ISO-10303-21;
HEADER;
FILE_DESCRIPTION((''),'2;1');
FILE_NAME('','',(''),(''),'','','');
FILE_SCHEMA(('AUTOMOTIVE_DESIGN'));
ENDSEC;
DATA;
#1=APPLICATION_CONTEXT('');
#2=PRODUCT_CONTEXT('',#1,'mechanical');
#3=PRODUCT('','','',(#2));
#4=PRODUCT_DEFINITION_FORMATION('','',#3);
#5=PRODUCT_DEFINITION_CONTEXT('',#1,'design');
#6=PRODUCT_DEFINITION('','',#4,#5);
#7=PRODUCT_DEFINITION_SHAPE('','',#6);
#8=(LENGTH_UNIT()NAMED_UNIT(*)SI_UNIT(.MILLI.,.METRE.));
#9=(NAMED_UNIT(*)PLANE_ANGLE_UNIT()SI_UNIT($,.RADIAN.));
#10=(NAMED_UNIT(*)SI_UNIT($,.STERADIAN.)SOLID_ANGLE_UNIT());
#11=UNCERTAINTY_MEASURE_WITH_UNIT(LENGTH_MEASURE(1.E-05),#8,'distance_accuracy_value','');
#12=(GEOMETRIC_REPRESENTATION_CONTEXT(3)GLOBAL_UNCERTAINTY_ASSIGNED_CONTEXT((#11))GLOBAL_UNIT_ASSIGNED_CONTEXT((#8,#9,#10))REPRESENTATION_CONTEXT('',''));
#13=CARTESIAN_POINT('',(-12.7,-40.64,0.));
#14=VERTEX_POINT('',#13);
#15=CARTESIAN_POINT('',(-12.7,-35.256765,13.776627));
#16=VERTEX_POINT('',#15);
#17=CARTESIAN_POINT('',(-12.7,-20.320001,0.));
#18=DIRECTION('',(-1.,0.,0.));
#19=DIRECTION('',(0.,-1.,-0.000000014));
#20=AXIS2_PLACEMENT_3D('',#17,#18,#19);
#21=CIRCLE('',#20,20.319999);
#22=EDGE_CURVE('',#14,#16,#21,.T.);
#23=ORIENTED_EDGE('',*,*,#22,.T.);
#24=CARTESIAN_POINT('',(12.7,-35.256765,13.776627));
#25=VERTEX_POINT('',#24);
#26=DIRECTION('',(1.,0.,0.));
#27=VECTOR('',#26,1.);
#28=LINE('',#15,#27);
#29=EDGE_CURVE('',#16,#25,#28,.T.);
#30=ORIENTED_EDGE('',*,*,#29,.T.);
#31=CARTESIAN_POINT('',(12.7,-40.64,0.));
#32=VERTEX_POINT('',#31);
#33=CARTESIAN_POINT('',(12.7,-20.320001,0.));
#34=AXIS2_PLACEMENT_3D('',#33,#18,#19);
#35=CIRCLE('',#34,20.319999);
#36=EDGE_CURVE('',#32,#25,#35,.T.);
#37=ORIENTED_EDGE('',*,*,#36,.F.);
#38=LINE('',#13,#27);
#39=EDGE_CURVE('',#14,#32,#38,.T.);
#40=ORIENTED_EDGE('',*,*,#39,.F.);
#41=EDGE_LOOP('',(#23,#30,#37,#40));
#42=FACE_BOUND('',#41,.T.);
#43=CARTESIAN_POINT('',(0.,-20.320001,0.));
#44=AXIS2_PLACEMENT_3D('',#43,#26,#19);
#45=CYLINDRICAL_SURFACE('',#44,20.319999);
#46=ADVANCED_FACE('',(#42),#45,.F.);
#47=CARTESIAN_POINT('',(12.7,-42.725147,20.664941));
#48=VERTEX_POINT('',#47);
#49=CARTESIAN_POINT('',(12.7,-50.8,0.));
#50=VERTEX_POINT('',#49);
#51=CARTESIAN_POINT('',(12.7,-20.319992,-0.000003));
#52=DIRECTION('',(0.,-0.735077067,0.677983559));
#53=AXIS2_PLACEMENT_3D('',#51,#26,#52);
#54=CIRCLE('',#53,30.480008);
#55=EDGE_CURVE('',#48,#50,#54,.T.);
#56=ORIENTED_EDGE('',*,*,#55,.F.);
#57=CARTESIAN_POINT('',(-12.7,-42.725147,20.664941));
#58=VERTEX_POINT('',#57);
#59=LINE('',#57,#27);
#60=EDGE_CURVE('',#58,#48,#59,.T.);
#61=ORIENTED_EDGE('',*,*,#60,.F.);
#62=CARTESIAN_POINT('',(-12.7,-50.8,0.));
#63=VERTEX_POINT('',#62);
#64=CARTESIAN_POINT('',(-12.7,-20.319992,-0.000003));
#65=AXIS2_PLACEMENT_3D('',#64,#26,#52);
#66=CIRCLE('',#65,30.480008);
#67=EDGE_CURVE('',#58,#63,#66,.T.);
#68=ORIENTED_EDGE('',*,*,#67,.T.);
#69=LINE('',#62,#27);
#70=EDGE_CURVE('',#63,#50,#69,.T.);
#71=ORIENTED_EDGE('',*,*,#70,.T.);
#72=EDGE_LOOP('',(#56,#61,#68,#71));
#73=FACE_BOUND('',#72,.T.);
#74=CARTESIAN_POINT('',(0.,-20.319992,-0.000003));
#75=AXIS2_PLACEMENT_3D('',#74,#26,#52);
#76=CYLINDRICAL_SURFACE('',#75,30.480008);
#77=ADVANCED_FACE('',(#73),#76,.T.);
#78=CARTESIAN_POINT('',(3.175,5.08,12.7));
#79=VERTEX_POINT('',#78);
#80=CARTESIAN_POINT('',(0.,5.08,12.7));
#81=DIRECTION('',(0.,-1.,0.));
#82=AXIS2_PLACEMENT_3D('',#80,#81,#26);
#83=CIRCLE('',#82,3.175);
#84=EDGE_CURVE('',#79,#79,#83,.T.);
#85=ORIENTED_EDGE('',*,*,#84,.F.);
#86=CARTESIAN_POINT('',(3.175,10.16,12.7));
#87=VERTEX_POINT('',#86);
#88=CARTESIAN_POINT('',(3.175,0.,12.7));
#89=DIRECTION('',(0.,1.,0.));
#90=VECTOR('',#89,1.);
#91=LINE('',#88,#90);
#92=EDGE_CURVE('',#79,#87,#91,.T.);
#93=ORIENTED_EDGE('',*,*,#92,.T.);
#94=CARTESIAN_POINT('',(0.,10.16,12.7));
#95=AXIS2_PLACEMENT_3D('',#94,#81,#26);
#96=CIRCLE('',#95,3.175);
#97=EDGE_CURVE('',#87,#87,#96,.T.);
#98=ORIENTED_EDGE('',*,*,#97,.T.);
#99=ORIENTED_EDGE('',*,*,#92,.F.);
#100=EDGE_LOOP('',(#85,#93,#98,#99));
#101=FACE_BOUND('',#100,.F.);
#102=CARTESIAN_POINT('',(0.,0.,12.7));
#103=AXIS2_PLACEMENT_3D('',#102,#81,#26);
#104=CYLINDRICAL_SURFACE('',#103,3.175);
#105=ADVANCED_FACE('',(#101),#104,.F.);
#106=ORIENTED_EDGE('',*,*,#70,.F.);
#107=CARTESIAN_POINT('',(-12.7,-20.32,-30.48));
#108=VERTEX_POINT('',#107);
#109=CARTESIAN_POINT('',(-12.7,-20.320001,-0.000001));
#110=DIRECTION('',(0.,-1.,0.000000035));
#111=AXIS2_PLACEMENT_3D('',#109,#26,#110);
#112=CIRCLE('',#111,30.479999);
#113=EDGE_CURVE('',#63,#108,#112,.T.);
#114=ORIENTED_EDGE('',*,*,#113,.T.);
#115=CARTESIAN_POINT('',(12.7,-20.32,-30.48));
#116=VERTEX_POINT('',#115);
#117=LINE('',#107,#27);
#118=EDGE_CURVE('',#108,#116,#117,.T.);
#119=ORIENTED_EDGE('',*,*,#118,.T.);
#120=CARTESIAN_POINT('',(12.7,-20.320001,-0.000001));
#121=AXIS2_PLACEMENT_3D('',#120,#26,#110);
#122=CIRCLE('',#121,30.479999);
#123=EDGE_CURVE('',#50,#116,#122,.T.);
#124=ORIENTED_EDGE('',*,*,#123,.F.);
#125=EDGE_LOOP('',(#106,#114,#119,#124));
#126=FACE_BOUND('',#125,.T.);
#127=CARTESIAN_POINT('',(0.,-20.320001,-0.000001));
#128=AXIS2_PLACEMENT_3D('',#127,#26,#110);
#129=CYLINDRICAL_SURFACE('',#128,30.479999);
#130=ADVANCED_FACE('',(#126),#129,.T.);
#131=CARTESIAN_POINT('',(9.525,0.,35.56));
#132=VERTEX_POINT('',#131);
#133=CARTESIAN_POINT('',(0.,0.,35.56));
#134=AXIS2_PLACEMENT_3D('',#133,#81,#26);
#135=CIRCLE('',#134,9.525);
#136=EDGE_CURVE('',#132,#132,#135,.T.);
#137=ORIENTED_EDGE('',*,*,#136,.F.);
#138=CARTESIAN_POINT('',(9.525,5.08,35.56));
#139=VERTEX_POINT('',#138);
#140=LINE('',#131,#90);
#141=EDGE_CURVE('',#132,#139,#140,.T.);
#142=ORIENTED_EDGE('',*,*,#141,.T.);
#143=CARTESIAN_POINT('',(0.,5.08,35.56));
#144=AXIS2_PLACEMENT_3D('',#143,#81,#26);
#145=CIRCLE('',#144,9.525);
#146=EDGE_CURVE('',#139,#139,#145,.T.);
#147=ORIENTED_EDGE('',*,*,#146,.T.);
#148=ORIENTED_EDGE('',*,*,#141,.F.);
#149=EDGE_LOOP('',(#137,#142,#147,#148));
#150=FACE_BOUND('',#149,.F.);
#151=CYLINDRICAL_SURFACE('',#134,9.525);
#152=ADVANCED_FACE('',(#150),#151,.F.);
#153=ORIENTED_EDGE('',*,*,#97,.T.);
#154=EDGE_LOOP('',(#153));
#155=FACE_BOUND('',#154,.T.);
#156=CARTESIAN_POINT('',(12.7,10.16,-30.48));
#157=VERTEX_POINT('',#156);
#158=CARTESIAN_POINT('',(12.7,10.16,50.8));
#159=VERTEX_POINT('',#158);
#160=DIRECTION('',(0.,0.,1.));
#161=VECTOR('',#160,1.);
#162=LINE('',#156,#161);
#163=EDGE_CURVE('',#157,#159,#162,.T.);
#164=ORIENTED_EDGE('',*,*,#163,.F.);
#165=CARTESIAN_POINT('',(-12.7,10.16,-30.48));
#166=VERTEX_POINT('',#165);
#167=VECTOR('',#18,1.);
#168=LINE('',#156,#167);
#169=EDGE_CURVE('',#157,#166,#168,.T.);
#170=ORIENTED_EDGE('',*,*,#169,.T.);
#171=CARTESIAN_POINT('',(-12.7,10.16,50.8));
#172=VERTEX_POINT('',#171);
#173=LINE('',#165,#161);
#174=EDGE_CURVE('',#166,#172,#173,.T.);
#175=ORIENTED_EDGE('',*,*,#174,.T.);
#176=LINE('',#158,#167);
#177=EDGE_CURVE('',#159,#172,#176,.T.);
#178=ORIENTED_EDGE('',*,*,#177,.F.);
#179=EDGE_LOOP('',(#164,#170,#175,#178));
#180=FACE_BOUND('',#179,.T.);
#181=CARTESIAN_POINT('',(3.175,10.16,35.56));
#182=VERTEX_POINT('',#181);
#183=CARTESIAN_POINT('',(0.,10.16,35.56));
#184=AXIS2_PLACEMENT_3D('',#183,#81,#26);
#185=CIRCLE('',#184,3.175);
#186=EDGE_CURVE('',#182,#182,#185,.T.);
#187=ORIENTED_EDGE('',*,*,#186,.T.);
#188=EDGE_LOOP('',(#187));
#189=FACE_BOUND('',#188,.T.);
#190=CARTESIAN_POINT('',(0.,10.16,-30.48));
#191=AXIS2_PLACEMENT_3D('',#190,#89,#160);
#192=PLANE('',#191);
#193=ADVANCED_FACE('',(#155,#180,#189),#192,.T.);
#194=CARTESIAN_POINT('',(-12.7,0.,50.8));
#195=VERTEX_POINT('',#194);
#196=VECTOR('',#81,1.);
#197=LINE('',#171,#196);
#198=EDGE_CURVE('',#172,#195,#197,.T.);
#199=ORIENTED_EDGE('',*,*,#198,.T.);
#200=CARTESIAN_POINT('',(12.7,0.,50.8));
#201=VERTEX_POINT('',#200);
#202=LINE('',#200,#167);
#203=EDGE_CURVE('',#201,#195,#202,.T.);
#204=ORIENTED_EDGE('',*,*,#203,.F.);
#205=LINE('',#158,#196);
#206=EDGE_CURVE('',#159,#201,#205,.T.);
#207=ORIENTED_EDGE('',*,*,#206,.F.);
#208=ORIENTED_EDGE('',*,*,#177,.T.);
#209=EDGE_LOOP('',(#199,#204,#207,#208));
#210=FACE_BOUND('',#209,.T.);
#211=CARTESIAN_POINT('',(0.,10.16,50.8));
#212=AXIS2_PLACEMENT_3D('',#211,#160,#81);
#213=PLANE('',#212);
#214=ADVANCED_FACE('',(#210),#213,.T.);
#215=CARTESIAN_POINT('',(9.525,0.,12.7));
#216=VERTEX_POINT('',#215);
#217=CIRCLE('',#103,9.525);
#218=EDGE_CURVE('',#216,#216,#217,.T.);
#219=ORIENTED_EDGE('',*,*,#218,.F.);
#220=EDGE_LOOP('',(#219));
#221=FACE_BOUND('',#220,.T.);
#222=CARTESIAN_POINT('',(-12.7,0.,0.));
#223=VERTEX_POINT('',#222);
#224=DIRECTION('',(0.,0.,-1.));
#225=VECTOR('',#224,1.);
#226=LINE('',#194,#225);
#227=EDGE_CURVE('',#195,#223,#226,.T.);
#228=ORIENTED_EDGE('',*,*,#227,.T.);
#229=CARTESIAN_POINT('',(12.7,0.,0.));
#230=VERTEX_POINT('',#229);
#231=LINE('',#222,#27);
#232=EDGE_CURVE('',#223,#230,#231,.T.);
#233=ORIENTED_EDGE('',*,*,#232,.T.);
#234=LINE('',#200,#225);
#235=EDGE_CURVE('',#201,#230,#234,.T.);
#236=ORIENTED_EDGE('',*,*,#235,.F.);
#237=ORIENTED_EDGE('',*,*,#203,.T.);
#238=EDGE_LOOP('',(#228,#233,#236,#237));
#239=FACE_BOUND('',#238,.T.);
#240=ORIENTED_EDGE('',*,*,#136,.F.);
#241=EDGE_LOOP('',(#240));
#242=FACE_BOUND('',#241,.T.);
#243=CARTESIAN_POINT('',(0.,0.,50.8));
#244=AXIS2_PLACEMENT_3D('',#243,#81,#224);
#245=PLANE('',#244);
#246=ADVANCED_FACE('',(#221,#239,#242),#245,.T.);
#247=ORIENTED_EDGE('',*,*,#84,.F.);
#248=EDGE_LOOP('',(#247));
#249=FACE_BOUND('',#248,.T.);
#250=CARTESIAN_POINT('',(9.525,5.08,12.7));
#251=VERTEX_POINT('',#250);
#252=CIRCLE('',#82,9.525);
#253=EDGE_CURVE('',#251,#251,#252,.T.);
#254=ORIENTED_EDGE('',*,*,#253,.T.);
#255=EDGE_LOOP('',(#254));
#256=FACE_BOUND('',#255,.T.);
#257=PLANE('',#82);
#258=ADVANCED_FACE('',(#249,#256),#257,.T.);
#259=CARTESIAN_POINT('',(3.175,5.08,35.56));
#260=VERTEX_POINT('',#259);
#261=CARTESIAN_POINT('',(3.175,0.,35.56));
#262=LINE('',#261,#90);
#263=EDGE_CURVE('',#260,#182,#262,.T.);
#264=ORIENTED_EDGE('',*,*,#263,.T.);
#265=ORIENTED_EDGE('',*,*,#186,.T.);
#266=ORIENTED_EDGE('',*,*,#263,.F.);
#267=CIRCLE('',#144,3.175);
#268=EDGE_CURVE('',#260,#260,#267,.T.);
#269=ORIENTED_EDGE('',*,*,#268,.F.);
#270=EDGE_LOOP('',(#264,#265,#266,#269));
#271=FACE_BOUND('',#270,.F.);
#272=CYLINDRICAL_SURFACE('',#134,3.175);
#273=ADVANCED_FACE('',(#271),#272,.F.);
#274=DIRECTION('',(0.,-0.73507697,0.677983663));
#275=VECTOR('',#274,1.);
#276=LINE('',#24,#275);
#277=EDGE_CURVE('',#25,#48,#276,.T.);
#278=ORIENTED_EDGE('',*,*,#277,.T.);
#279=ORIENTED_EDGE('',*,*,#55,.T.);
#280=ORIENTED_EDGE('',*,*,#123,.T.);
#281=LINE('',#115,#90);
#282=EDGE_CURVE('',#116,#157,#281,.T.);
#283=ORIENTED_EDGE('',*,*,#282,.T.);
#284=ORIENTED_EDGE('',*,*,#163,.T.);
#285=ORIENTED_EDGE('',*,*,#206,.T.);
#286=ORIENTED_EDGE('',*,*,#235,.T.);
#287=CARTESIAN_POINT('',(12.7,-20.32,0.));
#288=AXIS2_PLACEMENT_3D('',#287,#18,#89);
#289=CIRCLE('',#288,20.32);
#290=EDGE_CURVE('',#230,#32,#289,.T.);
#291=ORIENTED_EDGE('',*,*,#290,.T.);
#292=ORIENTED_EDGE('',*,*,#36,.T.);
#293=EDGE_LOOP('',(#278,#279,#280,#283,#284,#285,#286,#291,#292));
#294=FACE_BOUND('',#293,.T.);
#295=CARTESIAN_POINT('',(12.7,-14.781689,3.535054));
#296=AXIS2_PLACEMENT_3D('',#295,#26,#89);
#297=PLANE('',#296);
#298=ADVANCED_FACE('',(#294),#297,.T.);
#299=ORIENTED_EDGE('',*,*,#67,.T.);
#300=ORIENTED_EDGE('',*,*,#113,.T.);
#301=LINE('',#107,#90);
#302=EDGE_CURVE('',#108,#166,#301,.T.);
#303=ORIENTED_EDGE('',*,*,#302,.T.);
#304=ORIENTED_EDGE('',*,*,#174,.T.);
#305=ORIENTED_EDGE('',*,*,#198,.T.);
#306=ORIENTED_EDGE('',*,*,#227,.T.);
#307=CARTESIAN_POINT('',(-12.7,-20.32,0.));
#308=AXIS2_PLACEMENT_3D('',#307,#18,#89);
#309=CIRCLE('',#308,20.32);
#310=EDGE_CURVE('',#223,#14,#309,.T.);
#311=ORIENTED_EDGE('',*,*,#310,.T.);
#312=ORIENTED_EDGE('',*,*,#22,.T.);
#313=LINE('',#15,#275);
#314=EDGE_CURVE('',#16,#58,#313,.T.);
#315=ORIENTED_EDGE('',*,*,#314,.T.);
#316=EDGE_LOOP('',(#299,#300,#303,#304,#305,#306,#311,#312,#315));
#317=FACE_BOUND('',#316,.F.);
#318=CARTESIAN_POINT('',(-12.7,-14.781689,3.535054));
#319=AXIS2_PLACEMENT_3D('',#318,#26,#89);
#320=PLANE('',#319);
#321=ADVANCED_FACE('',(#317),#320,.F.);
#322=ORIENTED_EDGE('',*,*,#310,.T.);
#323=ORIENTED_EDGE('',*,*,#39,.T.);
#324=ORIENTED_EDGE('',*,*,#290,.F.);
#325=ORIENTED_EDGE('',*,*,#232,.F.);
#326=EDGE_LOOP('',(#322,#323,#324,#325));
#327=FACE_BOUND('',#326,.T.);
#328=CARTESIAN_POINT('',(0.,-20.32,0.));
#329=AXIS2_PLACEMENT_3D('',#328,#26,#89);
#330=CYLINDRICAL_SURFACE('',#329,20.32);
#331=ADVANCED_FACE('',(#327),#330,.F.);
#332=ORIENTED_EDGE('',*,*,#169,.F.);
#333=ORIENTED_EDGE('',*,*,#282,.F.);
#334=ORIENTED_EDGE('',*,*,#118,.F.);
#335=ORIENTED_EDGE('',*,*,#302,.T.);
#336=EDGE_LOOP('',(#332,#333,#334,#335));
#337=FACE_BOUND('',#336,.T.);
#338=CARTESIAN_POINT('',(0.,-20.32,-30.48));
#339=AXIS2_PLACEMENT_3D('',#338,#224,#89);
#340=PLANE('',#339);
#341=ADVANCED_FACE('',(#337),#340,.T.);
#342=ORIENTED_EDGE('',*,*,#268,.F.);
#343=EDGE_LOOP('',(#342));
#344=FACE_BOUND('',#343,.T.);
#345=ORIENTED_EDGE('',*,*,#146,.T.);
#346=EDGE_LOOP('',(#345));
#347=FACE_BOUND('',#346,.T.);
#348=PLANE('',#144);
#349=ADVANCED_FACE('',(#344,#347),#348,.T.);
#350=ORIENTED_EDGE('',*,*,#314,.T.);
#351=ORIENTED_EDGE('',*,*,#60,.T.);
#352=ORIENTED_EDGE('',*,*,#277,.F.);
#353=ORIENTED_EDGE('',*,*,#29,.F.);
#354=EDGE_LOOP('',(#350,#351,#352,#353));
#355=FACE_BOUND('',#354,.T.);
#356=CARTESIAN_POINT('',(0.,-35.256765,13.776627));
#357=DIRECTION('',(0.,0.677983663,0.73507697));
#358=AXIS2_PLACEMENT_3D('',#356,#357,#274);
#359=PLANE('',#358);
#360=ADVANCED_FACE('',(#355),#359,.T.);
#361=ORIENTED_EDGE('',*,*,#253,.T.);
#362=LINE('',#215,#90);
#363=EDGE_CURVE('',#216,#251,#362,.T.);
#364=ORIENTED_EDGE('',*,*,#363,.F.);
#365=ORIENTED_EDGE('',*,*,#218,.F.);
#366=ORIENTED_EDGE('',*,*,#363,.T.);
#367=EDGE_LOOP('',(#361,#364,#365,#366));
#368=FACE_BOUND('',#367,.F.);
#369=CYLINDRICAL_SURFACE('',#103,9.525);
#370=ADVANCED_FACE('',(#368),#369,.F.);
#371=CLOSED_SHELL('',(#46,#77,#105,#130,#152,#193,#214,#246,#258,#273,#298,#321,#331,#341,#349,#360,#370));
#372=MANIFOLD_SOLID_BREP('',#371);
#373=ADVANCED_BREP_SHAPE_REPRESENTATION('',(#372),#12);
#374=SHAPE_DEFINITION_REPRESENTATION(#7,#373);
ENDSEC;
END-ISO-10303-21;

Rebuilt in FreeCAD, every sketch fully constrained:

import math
import FreeCAD as App
import Part
import Sketcher

V = App.Vector
Q = App.Units.Quantity

doc = App.newDocument("Part")
body = doc.addObject("PartDesign::Body", "Body")

sketch1 = body.newObject("Sketcher::SketchObject", "Sketch")
sketch1.AttachmentSupport = (doc.getObject("YZ_Plane"), [""])
sketch1.MapMode = "FlatFace"
sketch1.addGeometry(Part.LineSegment(V(0, 50.8, 0), V(0, 0, 0)), False)
sketch1.addGeometry(Part.ArcOfCircle(Part.Circle(V(-20.32, 0, 0), V(0, 0, 1), 20.32), math.radians(180), math.radians(360)), False)
sketch1.addGeometry(Part.ArcOfCircle(Part.Circle(V(-20.320001, 0, 0), V(0, 0, 1), 20.319999), math.radians(137.313724), math.radians(180.000001)), False)
sketch1.addGeometry(Part.LineSegment(V(-35.256765, 13.776627, 0), V(-42.725147, 20.664941, 0)), False)
sketch1.addGeometry(Part.ArcOfCircle(Part.Circle(V(-20.319992, -0.000003, 0), V(0, 0, 1), 30.480008), math.radians(137.313729), math.radians(179.999994)), False)
sketch1.addGeometry(Part.ArcOfCircle(Part.Circle(V(-20.320001, -0.000001, 0), V(0, 0, 1), 30.479999), math.radians(179.999998), math.radians(270.000002)), False)
sketch1.addGeometry(Part.LineSegment(V(-20.32, -30.48, 0), V(10.16, -30.48, 0)), False)
sketch1.addGeometry(Part.LineSegment(V(10.16, -30.48, 0), V(10.16, 50.8, 0)), False)
sketch1.addGeometry(Part.LineSegment(V(10.16, 50.8, 0), V(0, 50.8, 0)), False)
sketch1.addConstraint(Sketcher.Constraint("Tangent", 0, 2, 1, 2))
sketch1.addConstraint(Sketcher.Constraint("Tangent", 1, 1, 2, 2))
sketch1.addConstraint(Sketcher.Constraint("Coincident", 2, 1, 3, 1))
sketch1.addConstraint(Sketcher.Constraint("Coincident", 3, 2, 4, 1))
sketch1.addConstraint(Sketcher.Constraint("Tangent", 4, 2, 5, 1))
sketch1.addConstraint(Sketcher.Constraint("Tangent", 5, 2, 6, 1))
sketch1.addConstraint(Sketcher.Constraint("Coincident", 6, 2, 7, 1))
sketch1.addConstraint(Sketcher.Constraint("Coincident", 7, 2, 8, 1))
sketch1.addConstraint(Sketcher.Constraint("Coincident", 8, 2, 0, 1))
sketch1.addConstraint(Sketcher.Constraint("Vertical", 0))
sketch1.addConstraint(Sketcher.Constraint("Horizontal", 6))
sketch1.addConstraint(Sketcher.Constraint("Vertical", 7))
sketch1.addConstraint(Sketcher.Constraint("Horizontal", 8))
sketch1.addConstraint(Sketcher.Constraint("Coincident", 0, 2, -1, 1))
sketch1.addConstraint(Sketcher.Constraint("Coincident", 4, 3, 1, 3))
sketch1.addConstraint(Sketcher.Constraint("Equal", 1, 2))
sketch1.addConstraint(Sketcher.Constraint("PointOnObject", 1, 1, -1))
sketch1.addConstraint(Sketcher.Constraint("PointOnObject", 4, 2, -1))
sketch1.addConstraint(Sketcher.Constraint("Vertical", 2, 3, 5, 2))
sketch1.addConstraint(Sketcher.Constraint("Radius", 1, Q("0.8 in")))
sketch1.addConstraint(Sketcher.Constraint("Radius", 5, Q("1.2 in")))
sketch1.addConstraint(Sketcher.Constraint("DistanceY", 0, 2, 0, 1, Q("2 in")))
sketch1.addConstraint(Sketcher.Constraint("DistanceX", 6, 1, 6, 2, Q("1.2 in")))
sketch1.addConstraint(Sketcher.Constraint("DistanceY", -1, 1, 3, 2, Q("20.664941 mm")))
sketch1.addConstraint(Sketcher.Constraint("DistanceY", 5, 3, 2, 1, Q("13.776628 mm")))
pad1 = body.newObject("PartDesign::Pad", "Pad")
pad1.Profile = sketch1
pad1.Length = Q("1 in")
pad1.Midplane = True

sketch2 = body.newObject("Sketcher::SketchObject", "Sketch001")
sketch2.AttachmentSupport = (doc.getObject("XZ_Plane"), [""])
sketch2.MapMode = "FlatFace"
sketch2.addGeometry(Part.Circle(V(0, 35.56, 0), V(0, 0, 1), 3.175), False)
sketch2.addGeometry(Part.Circle(V(0, 12.7, 0), V(0, 0, 1), 3.175), False)
sketch2.addConstraint(Sketcher.Constraint("Equal", 0, 1))
sketch2.addConstraint(Sketcher.Constraint("PointOnObject", 0, 3, -2))
sketch2.addConstraint(Sketcher.Constraint("PointOnObject", 1, 3, -2))
sketch2.addConstraint(Sketcher.Constraint("Diameter", 0, Q("0.25 in")))
sketch2.addConstraint(Sketcher.Constraint("DistanceY", -1, 1, 0, 3, Q("1.4 in")))
sketch2.addConstraint(Sketcher.Constraint("DistanceY", -1, 1, 1, 3, Q("0.5 in")))
pocket1 = body.newObject("PartDesign::Pocket", "Pocket")
pocket1.Profile = sketch2
pocket1.Type = "ThroughAll"

sketch3 = body.newObject("Sketcher::SketchObject", "Sketch002")
sketch3.AttachmentSupport = (doc.getObject("XZ_Plane"), [""])
sketch3.MapMode = "FlatFace"
sketch3.addGeometry(Part.Circle(V(0, 35.56, 0), V(0, 0, 1), 9.525), False)
sketch3.addGeometry(Part.Circle(V(0, 35.56, 0), V(0, 0, 1), 3.175), False)
sketch3.addGeometry(Part.Circle(V(0, 12.7, 0), V(0, 0, 1), 9.525), False)
sketch3.addGeometry(Part.Circle(V(0, 12.7, 0), V(0, 0, 1), 3.175), False)
sketch3.addConstraint(Sketcher.Constraint("Coincident", 1, 3, 0, 3))
sketch3.addConstraint(Sketcher.Constraint("Coincident", 3, 3, 2, 3))
sketch3.addConstraint(Sketcher.Constraint("Equal", 0, 2))
sketch3.addConstraint(Sketcher.Constraint("Equal", 1, 3))
sketch3.addConstraint(Sketcher.Constraint("PointOnObject", 0, 3, -2))
sketch3.addConstraint(Sketcher.Constraint("PointOnObject", 2, 3, -2))
sketch3.addConstraint(Sketcher.Constraint("Diameter", 0, Q("0.75 in")))
sketch3.addConstraint(Sketcher.Constraint("Diameter", 1, Q("0.25 in")))
sketch3.addConstraint(Sketcher.Constraint("DistanceY", -1, 1, 0, 3, Q("1.4 in")))
sketch3.addConstraint(Sketcher.Constraint("DistanceY", -1, 1, 2, 3, Q("0.5 in")))
pocket2 = body.newObject("PartDesign::Pocket", "Pocket001")
pocket2.Profile = sketch3
pocket2.Length = Q("0.2 in")

doc.recompute()
